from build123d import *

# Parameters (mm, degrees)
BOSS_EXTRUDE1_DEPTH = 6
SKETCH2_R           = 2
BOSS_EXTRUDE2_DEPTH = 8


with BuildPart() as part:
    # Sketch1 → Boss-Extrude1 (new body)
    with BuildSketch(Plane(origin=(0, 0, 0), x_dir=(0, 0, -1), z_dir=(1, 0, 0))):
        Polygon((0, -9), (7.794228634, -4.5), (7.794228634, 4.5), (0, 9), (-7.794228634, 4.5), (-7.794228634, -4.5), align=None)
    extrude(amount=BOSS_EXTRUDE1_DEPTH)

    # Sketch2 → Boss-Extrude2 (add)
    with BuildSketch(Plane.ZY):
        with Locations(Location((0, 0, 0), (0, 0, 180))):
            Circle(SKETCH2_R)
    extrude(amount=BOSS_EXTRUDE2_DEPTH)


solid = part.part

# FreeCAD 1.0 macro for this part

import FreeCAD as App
import Part
import Sketcher
Q = App.Units.Quantity

doc = App.newDocument("Part")
body = doc.addObject("PartDesign::Body", "Body")

# Sketch on YZ plane
sketch1 = body.newObject("Sketcher::SketchObject", "Sketch")
sketch1.AttachmentSupport = (doc.getObject("YZ_Plane"), [""])
sketch1.MapMode = "FlatFace"
sketch1.addGeometry([
    Part.LineSegment(App.Vector(-9, 0, 0), App.Vector(-4, -8, 0)),  # 0
    Part.LineSegment(App.Vector(-4, -8, 0), App.Vector(4, -8, 0)),  # 1
    Part.LineSegment(App.Vector(4, -8, 0), App.Vector(9, 0, 0)),  # 2
    Part.LineSegment(App.Vector(9, 0, 0), App.Vector(4, 8, 0)),  # 3
    Part.LineSegment(App.Vector(4, 8, 0), App.Vector(-4, 8, 0)),  # 4
    Part.LineSegment(App.Vector(-4, 8, 0), App.Vector(-9, 0, 0)),  # 5
], False)
sketch1.addConstraint([
    Sketcher.Constraint("Coincident", 0, 2, 1, 1),
    Sketcher.Constraint("Coincident", 1, 2, 2, 1),
    Sketcher.Constraint("Coincident", 2, 2, 3, 1),
    Sketcher.Constraint("Coincident", 3, 2, 4, 1),
    Sketcher.Constraint("Coincident", 4, 2, 5, 1),
    Sketcher.Constraint("Coincident", 5, 2, 0, 1),
    Sketcher.Constraint("Horizontal", 1),
    Sketcher.Constraint("Horizontal", 4),
    Sketcher.Constraint("Symmetric", 0, 2, 3, 2, -1, 1),
    Sketcher.Constraint("Symmetric", 2, 2, 5, 2, -1, 1),
    Sketcher.Constraint("PointOnObject", 2, 2, -1),
    Sketcher.Constraint("Parallel", 2, 5),
    Sketcher.Constraint("Vertical", 1, 2, 3, 2),
    Sketcher.Constraint("DistanceX", 1, 1, 1, 2, Q("9 mm")),
    Sketcher.Constraint("Angle", 0, Q("-60 deg")),
    Sketcher.Constraint("Distance", 0, Q("9 mm")),
])
pad1 = body.newObject("PartDesign::Pad", "Pad")
pad1.Profile = sketch1
pad1.Length = 6

# Sketch on YZ plane
sketch2 = body.newObject("Sketcher::SketchObject", "Sketch001")
sketch2.AttachmentSupport = (doc.getObject("YZ_Plane"), [""])
sketch2.MapMode = "FlatFace"
sketch2.addGeometry(Part.Circle(App.Vector(0, 0, 0), App.Vector(0, 0, 1), 2), False)
sketch2.addConstraint([
    Sketcher.Constraint("Coincident", 0, 3, -1, 1),
    Sketcher.Constraint("Diameter", 0, Q("4 mm")),
])
pad2 = body.newObject("PartDesign::Pad", "Pad001")
pad2.Profile = sketch2
pad2.Length = 8
pad2.Reversed = True

doc.recompute()
